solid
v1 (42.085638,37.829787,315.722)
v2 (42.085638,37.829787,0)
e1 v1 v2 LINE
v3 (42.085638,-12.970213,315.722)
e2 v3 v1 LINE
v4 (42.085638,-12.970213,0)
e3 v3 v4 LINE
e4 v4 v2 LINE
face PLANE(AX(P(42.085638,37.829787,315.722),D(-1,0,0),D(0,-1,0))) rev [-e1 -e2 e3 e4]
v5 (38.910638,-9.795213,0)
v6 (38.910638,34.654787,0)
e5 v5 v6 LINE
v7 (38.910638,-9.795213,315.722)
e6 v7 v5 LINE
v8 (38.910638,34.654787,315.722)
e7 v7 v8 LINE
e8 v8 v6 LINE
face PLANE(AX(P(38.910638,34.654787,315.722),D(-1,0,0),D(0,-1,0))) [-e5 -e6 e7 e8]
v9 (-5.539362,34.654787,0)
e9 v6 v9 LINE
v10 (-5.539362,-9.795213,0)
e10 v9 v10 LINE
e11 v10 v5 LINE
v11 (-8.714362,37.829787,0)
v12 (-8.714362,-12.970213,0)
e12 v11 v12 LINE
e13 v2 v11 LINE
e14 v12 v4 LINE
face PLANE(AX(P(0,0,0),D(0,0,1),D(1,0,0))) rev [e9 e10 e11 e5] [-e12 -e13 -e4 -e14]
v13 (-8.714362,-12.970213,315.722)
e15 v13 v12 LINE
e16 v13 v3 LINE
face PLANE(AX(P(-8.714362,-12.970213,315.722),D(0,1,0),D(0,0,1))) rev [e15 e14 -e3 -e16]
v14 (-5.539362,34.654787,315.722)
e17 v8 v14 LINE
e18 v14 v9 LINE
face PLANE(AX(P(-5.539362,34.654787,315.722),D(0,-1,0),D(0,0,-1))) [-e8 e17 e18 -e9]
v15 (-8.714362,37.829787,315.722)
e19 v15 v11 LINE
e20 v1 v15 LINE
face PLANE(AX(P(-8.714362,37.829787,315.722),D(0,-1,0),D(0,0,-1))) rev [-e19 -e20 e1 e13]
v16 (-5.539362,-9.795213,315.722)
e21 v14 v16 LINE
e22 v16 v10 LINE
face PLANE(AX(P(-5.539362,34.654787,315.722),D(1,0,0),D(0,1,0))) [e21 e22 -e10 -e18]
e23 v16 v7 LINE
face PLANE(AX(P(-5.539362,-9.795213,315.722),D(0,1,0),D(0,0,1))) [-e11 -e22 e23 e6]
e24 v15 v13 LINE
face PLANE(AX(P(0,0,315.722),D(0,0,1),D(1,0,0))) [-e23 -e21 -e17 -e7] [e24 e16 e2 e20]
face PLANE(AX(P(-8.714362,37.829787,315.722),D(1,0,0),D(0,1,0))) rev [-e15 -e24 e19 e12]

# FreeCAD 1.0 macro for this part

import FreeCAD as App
import Part
import Sketcher
Q = App.Units.Quantity

doc = App.newDocument("Part")
body = doc.addObject("PartDesign::Body", "Body")

# Sketch on XY plane
sketch1 = doc.addObject("Sketcher::SketchObject", "Sketch")
body.addObject(sketch1)
sketch1.AttachmentSupport = (doc.XY_Plane, [""])
sketch1.MapMode = "FlatFace"
sketch1.addGeometry(Part.LineSegment(App.Vector(-8.714362, 37.829787, 0), App.Vector(-8.714362, -12.970213, 0)), False)
sketch1.addGeometry(Part.LineSegment(App.Vector(-8.714362, -12.970213, 0), App.Vector(42.085638, -12.970213, 0)), False)
sketch1.addGeometry(Part.LineSegment(App.Vector(42.085638, -12.970213, 0), App.Vector(42.085638, 37.829787, 0)), False)
sketch1.addGeometry(Part.LineSegment(App.Vector(42.085638, 37.829787, 0), App.Vector(-8.714362, 37.829787, 0)), False)
sketch1.addGeometry(Part.LineSegment(App.Vector(38.910638, -9.795213, 0), App.Vector(-5.539362, -9.795213, 0)), False)
sketch1.addGeometry(Part.LineSegment(App.Vector(-5.539362, -9.795213, 0), App.Vector(-5.539362, 34.654787, 0)), False)
sketch1.addGeometry(Part.LineSegment(App.Vector(-5.539362, 34.654787, 0), App.Vector(38.910638, 34.654787, 0)), False)
sketch1.addGeometry(Part.LineSegment(App.Vector(38.910638, 34.654787, 0), App.Vector(38.910638, -9.795213, 0)), False)
sketch1.addConstraint(Sketcher.Constraint("Coincident", 0, 2, 1, 1))
sketch1.addConstraint(Sketcher.Constraint("Coincident", 1, 2, 2, 1))
sketch1.addConstraint(Sketcher.Constraint("Coincident", 2, 2, 3, 1))
sketch1.addConstraint(Sketcher.Constraint("Coincident", 3, 2, 0, 1))
sketch1.addConstraint(Sketcher.Constraint("Coincident", 4, 2, 5, 1))
sketch1.addConstraint(Sketcher.Constraint("Coincident", 5, 2, 6, 1))
sketch1.addConstraint(Sketcher.Constraint("Coincident", 6, 2, 7, 1))
sketch1.addConstraint(Sketcher.Constraint("Coincident", 7, 2, 4, 1))
sketch1.addConstraint(Sketcher.Constraint("Vertical", 0))
sketch1.addConstraint(Sketcher.Constraint("Horizontal", 1))
sketch1.addConstraint(Sketcher.Constraint("Vertical", 2))
sketch1.addConstraint(Sketcher.Constraint("Horizontal", 3))
sketch1.addConstraint(Sketcher.Constraint("Horizontal", 4))
sketch1.addConstraint(Sketcher.Constraint("Vertical", 5))
sketch1.addConstraint(Sketcher.Constraint("Horizontal", 6))
sketch1.addConstraint(Sketcher.Constraint("Vertical", 7))
sketch1.addConstraint(Sketcher.Constraint("Equal", 3, 0))
sketch1.addConstraint(Sketcher.Constraint("Equal", 6, 5))
sketch1.addConstraint(Sketcher.Constraint("DistanceX", 1, 1, 1, 2, Q("2 in")))
sketch1.addConstraint(Sketcher.Constraint("DistanceX", 4, 2, 4, 1, Q("1.75 in")))
sketch1.addConstraint(Sketcher.Constraint("DistanceX", 0, 2, 4, 2, Q("0.125 in")))
sketch1.addConstraint(Sketcher.Constraint("DistanceY", 0, 2, 4, 2, Q("0.125 in")))
sketch1.addConstraint(Sketcher.Constraint("DistanceX", 0, 2, -1, 1, Q("8.714362 mm")))
sketch1.addConstraint(Sketcher.Constraint("DistanceY", 0, 2, -1, 1, Q("12.970213 mm")))
pad1 = doc.addObject("PartDesign::Pad", "Pad")
body.addObject(pad1)
pad1.Profile = sketch1
pad1.Length = Q("12.43 in")

doc.recompute()
